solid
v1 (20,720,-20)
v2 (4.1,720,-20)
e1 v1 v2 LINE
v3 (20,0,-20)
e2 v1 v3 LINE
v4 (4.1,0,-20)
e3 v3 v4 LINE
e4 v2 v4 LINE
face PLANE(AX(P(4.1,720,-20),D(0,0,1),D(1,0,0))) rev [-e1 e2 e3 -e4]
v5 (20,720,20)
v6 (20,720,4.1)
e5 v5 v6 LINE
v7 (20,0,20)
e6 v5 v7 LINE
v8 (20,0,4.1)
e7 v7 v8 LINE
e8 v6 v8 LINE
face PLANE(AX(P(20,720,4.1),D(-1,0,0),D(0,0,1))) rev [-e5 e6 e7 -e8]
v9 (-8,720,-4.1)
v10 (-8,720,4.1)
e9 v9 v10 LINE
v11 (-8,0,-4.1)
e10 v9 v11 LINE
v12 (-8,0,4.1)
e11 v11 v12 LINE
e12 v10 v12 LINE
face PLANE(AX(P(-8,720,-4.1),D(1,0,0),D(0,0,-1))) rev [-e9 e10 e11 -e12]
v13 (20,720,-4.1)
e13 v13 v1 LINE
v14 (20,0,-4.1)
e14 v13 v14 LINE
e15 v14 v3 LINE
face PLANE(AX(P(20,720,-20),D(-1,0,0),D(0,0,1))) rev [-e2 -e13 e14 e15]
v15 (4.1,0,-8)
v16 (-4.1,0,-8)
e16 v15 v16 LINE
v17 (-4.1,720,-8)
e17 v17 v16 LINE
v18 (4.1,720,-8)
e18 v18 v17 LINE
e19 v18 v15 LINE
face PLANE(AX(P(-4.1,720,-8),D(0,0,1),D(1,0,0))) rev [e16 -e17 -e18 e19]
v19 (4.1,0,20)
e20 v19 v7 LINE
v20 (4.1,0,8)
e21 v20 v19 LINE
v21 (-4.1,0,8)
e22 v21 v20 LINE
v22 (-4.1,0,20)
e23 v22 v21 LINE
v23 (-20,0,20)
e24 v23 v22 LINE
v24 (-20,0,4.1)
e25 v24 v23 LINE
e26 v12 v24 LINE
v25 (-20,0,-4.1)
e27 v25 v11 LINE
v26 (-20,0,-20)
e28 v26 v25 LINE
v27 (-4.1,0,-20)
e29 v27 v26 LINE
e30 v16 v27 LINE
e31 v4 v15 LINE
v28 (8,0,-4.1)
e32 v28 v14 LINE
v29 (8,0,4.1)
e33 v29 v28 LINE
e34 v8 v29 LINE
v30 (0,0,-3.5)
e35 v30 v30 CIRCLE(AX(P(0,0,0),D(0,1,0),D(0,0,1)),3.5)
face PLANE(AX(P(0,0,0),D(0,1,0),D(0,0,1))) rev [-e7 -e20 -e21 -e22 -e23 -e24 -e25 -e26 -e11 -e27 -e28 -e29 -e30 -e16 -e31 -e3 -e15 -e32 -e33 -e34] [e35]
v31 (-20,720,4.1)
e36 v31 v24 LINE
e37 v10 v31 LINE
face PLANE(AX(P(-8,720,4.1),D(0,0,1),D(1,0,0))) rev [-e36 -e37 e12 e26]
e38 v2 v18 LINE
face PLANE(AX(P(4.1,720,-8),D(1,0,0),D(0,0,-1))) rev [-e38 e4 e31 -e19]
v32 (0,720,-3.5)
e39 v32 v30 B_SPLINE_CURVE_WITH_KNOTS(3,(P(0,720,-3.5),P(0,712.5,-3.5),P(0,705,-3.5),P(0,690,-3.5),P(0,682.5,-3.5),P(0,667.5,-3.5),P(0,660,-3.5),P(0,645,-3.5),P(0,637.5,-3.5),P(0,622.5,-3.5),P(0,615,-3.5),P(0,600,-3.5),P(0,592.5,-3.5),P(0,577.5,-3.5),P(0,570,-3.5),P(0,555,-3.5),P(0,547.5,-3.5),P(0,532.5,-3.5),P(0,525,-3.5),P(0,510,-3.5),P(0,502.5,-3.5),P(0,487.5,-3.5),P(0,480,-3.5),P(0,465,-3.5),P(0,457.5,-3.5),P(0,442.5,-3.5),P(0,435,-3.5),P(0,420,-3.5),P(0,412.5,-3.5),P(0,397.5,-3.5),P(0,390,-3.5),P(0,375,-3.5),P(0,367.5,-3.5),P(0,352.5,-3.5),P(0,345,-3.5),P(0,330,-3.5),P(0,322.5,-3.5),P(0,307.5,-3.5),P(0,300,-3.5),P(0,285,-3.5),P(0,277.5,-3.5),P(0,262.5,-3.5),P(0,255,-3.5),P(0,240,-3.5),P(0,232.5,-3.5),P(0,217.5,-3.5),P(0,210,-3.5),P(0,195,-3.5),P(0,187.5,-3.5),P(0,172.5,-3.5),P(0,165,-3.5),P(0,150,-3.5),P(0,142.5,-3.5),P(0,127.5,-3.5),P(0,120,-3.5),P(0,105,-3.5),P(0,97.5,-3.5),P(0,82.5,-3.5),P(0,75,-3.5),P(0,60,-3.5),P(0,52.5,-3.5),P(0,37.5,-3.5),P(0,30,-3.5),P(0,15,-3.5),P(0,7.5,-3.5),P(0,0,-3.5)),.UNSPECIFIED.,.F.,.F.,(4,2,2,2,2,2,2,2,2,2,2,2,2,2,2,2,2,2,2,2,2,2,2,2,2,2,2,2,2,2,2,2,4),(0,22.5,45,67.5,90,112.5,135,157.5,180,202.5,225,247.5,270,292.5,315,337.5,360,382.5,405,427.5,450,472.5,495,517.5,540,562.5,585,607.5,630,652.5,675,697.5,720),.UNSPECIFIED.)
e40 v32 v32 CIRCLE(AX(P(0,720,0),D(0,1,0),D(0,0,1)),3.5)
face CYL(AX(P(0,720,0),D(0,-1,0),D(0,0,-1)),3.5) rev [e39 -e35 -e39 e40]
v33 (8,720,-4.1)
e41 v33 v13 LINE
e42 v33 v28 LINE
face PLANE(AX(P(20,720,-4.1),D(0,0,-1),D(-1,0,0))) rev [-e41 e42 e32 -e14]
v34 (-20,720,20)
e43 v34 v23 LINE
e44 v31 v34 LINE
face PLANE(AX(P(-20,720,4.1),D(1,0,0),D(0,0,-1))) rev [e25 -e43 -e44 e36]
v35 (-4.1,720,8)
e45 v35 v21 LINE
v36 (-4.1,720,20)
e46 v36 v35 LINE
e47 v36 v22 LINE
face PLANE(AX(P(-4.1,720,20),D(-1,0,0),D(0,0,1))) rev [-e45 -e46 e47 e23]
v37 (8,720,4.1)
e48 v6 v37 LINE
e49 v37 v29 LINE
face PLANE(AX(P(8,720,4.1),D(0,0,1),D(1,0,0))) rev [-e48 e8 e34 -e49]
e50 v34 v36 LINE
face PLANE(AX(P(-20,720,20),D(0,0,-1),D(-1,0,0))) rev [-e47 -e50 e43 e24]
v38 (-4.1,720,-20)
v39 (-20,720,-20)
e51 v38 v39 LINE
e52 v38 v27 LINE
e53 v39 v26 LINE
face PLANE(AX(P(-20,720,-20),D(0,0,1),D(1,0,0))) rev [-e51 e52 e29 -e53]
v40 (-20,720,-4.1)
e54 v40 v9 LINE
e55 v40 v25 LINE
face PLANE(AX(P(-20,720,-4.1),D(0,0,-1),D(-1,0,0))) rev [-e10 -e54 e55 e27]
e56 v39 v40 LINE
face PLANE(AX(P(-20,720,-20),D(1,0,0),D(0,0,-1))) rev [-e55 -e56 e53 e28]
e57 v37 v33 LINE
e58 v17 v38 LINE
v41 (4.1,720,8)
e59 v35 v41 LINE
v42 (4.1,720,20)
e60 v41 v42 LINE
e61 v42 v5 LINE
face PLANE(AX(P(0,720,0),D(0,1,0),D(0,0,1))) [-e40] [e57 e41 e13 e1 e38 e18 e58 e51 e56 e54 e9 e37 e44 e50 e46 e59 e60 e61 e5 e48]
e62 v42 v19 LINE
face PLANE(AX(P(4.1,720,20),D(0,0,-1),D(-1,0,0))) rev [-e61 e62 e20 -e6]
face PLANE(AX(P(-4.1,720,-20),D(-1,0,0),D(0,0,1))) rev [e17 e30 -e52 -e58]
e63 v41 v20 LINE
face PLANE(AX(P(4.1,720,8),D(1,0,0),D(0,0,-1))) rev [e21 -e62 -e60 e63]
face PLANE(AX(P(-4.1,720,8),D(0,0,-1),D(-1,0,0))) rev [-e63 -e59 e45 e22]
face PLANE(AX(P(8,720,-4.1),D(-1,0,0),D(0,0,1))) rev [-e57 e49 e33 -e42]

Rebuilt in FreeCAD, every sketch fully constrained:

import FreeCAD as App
import Part
import Sketcher
Q = App.Units.Quantity


def add_polygon(sketch, points):
    """Adds a closed chain of lines whose ends are joined by coincident constraints."""
    first, n = sketch.GeometryCount, len(points)
    for a, b in zip(points, points[1:] + points[:1]):
        sketch.addGeometry(Part.LineSegment(App.Vector(*a, 0), App.Vector(*b, 0)), False)
    for i in range(n):
        sketch.addConstraint(Sketcher.Constraint("Coincident", first + i, 2, first + (i + 1) % n, 1))

doc = App.newDocument("Part")
body = doc.addObject("PartDesign::Body", "Body")

sketch1 = body.newObject("Sketcher::SketchObject", "Sketch")
sketch1.AttachmentSupport = (doc.getObject("XZ_Plane"), [""])
sketch1.MapMode = "FlatFace"
add_polygon(sketch1, [(-4.1, 20), (-4.1, 8), (4.1, 8), (4.1, 20), (20, 20), (20, 4.1), (8, 4.1), (8, -4.1), (20, -4.1), (20, -20), (4.1, -20), (4.1, -8), (-4.1, -8), (-4.1, -20), (-20, -20), (-20, -4.1), (-8, -4.1), (-8, 4.1), (-20, 4.1), (-20, 20)])
sketch1.addGeometry(Part.Circle(App.Vector(0, 0, 0), App.Vector(0, 0, 1), 3.5), False)
sketch1.addConstraint([
    Sketcher.Constraint("Vertical", 0),
    Sketcher.Constraint("Horizontal", 1),
    Sketcher.Constraint("Vertical", 2),
    Sketcher.Constraint("Horizontal", 3),
    Sketcher.Constraint("Vertical", 4),
    Sketcher.Constraint("Horizontal", 5),
    Sketcher.Constraint("Vertical", 6),
    Sketcher.Constraint("Horizontal", 7),
    Sketcher.Constraint("Vertical", 8),
    Sketcher.Constraint("Horizontal", 9),
    Sketcher.Constraint("Vertical", 10),
    Sketcher.Constraint("Horizontal", 11),
    Sketcher.Constraint("Vertical", 12),
    Sketcher.Constraint("Horizontal", 13),
    Sketcher.Constraint("Vertical", 14),
    Sketcher.Constraint("Horizontal", 15),
    Sketcher.Constraint("Vertical", 16),
    Sketcher.Constraint("Horizontal", 17),
    Sketcher.Constraint("Vertical", 18),
    Sketcher.Constraint("Horizontal", 19),
    Sketcher.Constraint("Coincident", 20, 3, -1, 1),
    Sketcher.Constraint("Symmetric", 0, 2, 10, 2, -1, 1),
    Sketcher.Constraint("Symmetric", 2, 2, 12, 2, -1, 1),
    Sketcher.Constraint("Symmetric", 4, 2, 14, 2, -1, 1),
    Sketcher.Constraint("Symmetric", 6, 2, 16, 2, -1, 1),
    Sketcher.Constraint("Symmetric", 8, 2, 18, 2, -1, 1),
    Sketcher.Constraint("Symmetric", 9, 2, 12, 2, -2),
    Sketcher.Constraint("Symmetric", 7, 2, 14, 2, -2),
    Sketcher.Constraint("Equal", 17, 0),
    Sketcher.Constraint("Equal", 19, 4),
    Sketcher.Constraint("Equal", 11, 6),
    Sketcher.Constraint("Diameter", 20, Q("7 mm")),
    Sketcher.Constraint("DistanceX", 5, 2, 5, 1, Q("12 mm")),
    Sketcher.Constraint("DistanceX", 1, 1, 1, 2, Q("8.2 mm")),
    Sketcher.Constraint("DistanceX", 3, 1, 3, 2, Q("15.9 mm")),
])
pad1 = body.newObject("PartDesign::Pad", "Pad")
pad1.Profile = sketch1
pad1.Length = 720
pad1.Reversed = True

doc.recompute()
